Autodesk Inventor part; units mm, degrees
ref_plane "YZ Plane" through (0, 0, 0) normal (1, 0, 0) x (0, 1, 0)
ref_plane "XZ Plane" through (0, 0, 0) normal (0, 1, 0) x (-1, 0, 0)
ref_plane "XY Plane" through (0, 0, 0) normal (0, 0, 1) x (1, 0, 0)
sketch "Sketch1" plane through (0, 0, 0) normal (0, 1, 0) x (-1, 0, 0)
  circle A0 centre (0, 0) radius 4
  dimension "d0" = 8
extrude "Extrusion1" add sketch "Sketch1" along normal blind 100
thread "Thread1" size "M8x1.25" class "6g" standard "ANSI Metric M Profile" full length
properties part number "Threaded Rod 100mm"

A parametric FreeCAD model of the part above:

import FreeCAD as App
import Part
import Sketcher

V = App.Vector

doc = App.newDocument("Part")
body = doc.addObject("PartDesign::Body", "Body")

sketch1 = body.newObject("Sketcher::SketchObject", "Sketch")
sketch1.AttachmentSupport = (doc.getObject("XZ_Plane"), [""])
sketch1.MapMode = "FlatFace"
sketch1.addGeometry(Part.Circle(V(0, 0, 0), V(0, 0, 1), 4), False)
sketch1.addConstraint([
    Sketcher.Constraint("Coincident", 0, 3, -1, 1),
    Sketcher.Constraint("Diameter", 0, 8.0),
])
pad1 = body.newObject("PartDesign::Pad", "Pad")
pad1.Profile = sketch1
pad1.Length = 100
pad1.Reversed = True

doc.recompute()
